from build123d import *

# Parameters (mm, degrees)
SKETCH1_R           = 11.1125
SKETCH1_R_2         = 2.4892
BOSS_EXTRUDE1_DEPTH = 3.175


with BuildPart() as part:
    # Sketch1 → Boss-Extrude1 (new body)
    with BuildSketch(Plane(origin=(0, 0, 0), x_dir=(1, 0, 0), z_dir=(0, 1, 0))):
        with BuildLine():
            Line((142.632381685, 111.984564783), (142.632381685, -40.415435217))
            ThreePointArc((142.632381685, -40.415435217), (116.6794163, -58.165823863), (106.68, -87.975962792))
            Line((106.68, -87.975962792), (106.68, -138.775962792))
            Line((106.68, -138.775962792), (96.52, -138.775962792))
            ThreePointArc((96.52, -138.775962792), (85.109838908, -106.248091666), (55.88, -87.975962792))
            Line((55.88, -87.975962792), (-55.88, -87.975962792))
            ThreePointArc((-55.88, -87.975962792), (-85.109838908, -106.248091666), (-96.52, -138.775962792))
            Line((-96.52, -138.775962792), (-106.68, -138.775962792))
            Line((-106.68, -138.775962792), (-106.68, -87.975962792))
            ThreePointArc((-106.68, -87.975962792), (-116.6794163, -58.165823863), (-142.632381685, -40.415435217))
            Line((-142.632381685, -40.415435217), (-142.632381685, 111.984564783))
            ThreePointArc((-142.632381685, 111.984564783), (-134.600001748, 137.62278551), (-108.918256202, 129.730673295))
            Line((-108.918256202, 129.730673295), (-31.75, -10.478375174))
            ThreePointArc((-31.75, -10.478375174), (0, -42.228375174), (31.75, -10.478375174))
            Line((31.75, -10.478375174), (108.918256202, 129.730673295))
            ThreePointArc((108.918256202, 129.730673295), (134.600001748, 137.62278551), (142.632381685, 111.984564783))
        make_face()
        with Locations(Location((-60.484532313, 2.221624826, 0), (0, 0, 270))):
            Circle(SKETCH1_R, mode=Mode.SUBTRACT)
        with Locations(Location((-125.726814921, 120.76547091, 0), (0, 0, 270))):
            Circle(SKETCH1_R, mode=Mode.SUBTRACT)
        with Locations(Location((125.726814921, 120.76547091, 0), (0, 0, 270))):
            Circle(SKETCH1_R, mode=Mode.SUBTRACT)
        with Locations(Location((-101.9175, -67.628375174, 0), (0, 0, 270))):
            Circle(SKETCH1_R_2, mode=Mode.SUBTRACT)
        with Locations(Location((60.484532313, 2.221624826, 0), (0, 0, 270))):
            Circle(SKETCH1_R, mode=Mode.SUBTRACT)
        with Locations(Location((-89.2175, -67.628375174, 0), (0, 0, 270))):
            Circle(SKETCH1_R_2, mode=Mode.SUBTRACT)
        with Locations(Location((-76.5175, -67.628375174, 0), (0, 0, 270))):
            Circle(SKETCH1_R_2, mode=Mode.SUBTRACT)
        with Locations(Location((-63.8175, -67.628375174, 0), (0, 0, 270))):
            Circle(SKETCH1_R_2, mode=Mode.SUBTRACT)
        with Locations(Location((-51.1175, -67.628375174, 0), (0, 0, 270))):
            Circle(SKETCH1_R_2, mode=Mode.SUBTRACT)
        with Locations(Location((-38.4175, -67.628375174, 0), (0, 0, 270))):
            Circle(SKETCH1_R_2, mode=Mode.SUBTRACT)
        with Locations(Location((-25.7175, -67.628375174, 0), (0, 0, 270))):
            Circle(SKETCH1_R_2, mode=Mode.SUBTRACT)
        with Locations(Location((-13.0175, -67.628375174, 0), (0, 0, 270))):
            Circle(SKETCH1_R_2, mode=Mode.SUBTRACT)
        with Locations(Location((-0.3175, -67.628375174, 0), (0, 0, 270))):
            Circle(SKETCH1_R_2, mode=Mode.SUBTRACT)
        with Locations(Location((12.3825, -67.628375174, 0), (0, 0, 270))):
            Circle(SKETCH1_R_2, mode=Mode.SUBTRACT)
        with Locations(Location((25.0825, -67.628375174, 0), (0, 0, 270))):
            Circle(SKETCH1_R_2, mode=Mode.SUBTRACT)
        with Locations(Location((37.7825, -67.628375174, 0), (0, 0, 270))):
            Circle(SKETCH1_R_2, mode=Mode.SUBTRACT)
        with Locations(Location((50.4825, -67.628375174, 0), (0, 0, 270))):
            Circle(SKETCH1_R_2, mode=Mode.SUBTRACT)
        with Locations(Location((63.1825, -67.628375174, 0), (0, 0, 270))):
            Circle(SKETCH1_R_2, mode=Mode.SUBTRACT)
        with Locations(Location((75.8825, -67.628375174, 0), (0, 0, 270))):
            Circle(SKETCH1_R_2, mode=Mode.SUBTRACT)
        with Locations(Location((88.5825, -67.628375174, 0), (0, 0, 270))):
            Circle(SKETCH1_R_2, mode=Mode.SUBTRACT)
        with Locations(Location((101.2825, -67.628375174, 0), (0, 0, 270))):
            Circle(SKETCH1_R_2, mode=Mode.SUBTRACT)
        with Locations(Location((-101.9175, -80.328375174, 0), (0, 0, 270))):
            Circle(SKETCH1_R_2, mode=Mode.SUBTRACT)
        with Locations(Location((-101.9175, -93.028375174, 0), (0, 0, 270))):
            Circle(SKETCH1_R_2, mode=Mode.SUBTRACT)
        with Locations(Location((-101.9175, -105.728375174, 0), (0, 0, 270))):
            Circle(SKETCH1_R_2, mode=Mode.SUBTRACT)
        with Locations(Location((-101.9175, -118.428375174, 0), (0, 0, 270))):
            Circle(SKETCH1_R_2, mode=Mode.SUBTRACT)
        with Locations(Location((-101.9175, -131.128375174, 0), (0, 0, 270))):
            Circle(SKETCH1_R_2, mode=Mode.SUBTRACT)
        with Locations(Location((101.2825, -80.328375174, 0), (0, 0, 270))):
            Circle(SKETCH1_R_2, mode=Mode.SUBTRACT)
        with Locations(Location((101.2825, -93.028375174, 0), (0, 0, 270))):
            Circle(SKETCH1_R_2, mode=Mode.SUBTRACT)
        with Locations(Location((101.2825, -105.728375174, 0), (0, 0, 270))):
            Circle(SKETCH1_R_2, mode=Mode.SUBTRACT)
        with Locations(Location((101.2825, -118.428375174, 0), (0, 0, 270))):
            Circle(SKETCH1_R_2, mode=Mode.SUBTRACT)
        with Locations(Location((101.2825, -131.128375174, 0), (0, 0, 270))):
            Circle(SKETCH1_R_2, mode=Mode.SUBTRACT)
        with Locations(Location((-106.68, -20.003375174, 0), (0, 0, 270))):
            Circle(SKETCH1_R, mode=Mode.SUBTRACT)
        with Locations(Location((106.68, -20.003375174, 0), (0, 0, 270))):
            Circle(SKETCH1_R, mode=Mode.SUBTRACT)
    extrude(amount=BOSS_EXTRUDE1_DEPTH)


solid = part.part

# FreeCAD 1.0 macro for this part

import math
import FreeCAD as App
import Part
import Sketcher
from FreeCAD import Vector
Q = App.Units.Quantity

doc = App.newDocument("Part")
body = doc.addObject("PartDesign::Body", "Body")

# Sketch on XZ plane
sketch1 = body.newObject("Sketcher::SketchObject", "Sketch")
sketch1.AttachmentSupport = (doc.getObject("XZ_Plane"), [""])
sketch1.MapMode = "FlatFace"
sketch1.addGeometry(Part.LineSegment(Vector(142.6, 40.4, 0), Vector(142.6, -112, 0)), False)
sketch1.addGeometry(Part.ArcOfCircle(Part.Circle(Vector(125.7, -120.8, 0), Vector(0, 0, 1), 19.1), math.radians(-152), math.radians(27)), False)
sketch1.addGeometry(Part.LineSegment(Vector(108.9, -129.7, 0), Vector(31.8, 10.5, 0)), False)
sketch1.addGeometry(Part.ArcOfCircle(Part.Circle(Vector(0, 10.5, 0), Vector(0, 0, 1), 31.8), math.radians(0), math.radians(180)), False)
sketch1.addGeometry(Part.LineSegment(Vector(-31.8, 10.5, 0), Vector(-108.9, -129.7, 0)), False)
sketch1.addGeometry(Part.ArcOfCircle(Part.Circle(Vector(-125.7, -120.8, 0), Vector(0, 0, 1), 19.1), math.radians(153), math.radians(332)), False)
sketch1.addGeometry(Part.LineSegment(Vector(-142.6, -112, 0), Vector(-142.6, 40.4, 0)), False)
sketch1.addGeometry(Part.ArcOfCircle(Part.Circle(Vector(-156.1, 88, 0), Vector(0, 0, 1), 49.4), math.radians(-74), math.radians(0)), False)
sketch1.addGeometry(Part.LineSegment(Vector(-106.7, 88, 0), Vector(-106.7, 138.8, 0)), False)
sketch1.addGeometry(Part.LineSegment(Vector(-106.7, 138.8, 0), Vector(-96.5, 138.8, 0)), False)
sketch1.addGeometry(Part.ArcOfCircle(Part.Circle(Vector(-44.5, 138.8, 0), Vector(0, 0, 1), 52.1), math.radians(180), math.radians(257)), False)
sketch1.addGeometry(Part.LineSegment(Vector(-55.9, 88, 0), Vector(55.9, 88, 0)), False)
sketch1.addGeometry(Part.ArcOfCircle(Part.Circle(Vector(44.5, 138.8, 0), Vector(0, 0, 1), 52.1), math.radians(-77), math.radians(0)), False)
sketch1.addGeometry(Part.LineSegment(Vector(96.5, 138.8, 0), Vector(106.7, 138.8, 0)), False)
sketch1.addGeometry(Part.LineSegment(Vector(106.7, 138.8, 0), Vector(106.7, 88, 0)), False)
sketch1.addGeometry(Part.ArcOfCircle(Part.Circle(Vector(156.1, 88, 0), Vector(0, 0, 1), 49.4), math.radians(-180), math.radians(-106)), False)
sketch1.addGeometry(Part.Circle(Vector(101.3, 131.1, 0), Vector(0, 0, 1), 2.5), False)
sketch1.addGeometry(Part.Circle(Vector(101.3, 118.4, 0), Vector(0, 0, 1), 2.5), False)
sketch1.addGeometry(Part.Circle(Vector(101.3, 105.7, 0), Vector(0, 0, 1), 2.5), False)
sketch1.addGeometry(Part.Circle(Vector(101.3, 93, 0), Vector(0, 0, 1), 2.5), False)
sketch1.addGeometry(Part.Circle(Vector(101.3, 80.3, 0), Vector(0, 0, 1), 2.5), False)
sketch1.addGeometry(Part.Circle(Vector(101.3, 67.6, 0), Vector(0, 0, 1), 2.5), False)
sketch1.addGeometry(Part.Circle(Vector(88.6, 67.6, 0), Vector(0, 0, 1), 2.5), False)
sketch1.addGeometry(Part.Circle(Vector(75.9, 67.6, 0), Vector(0, 0, 1), 2.5), False)
sketch1.addGeometry(Part.Circle(Vector(63.2, 67.6, 0), Vector(0, 0, 1), 2.5), False)
sketch1.addGeometry(Part.Circle(Vector(50.5, 67.6, 0), Vector(0, 0, 1), 2.5), False)
sketch1.addGeometry(Part.Circle(Vector(37.8, 67.6, 0), Vector(0, 0, 1), 2.5), False)
sketch1.addGeometry(Part.Circle(Vector(25.1, 67.6, 0), Vector(0, 0, 1), 2.5), False)
sketch1.addGeometry(Part.Circle(Vector(12.4, 67.6, 0), Vector(0, 0, 1), 2.5), False)
sketch1.addGeometry(Part.Circle(Vector(106.7, 20, 0), Vector(0, 0, 1), 11.1), False)
sketch1.addGeometry(Part.Circle(Vector(-0.3, 67.6, 0), Vector(0, 0, 1), 2.5), False)
sketch1.addGeometry(Part.Circle(Vector(-13, 67.6, 0), Vector(0, 0, 1), 2.5), False)
sketch1.addGeometry(Part.Circle(Vector(-25.7, 67.6, 0), Vector(0, 0, 1), 2.5), False)
sketch1.addGeometry(Part.Circle(Vector(-38.4, 67.6, 0), Vector(0, 0, 1), 2.5), False)
sketch1.addGeometry(Part.Circle(Vector(-51.1, 67.6, 0), Vector(0, 0, 1), 2.5), False)
sketch1.addGeometry(Part.Circle(Vector(-63.8, 67.6, 0), Vector(0, 0, 1), 2.5), False)
sketch1.addGeometry(Part.Circle(Vector(-101.9, 131.1, 0), Vector(0, 0, 1), 2.5), False)
sketch1.addGeometry(Part.Circle(Vector(-101.9, 118.4, 0), Vector(0, 0, 1), 2.5), False)
sketch1.addGeometry(Part.Circle(Vector(-101.9, 105.7, 0), Vector(0, 0, 1), 2.5), False)
sketch1.addGeometry(Part.Circle(Vector(-101.9, 93, 0), Vector(0, 0, 1), 2.5), False)
sketch1.addGeometry(Part.Circle(Vector(-76.5, 67.6, 0), Vector(0, 0, 1), 2.5), False)
sketch1.addGeometry(Part.Circle(Vector(-101.9, 80.3, 0), Vector(0, 0, 1), 2.5), False)
sketch1.addGeometry(Part.Circle(Vector(-89.2, 67.6, 0), Vector(0, 0, 1), 2.5), False)
sketch1.addGeometry(Part.Circle(Vector(-101.9, 67.6, 0), Vector(0, 0, 1), 2.5), False)
sketch1.addGeometry(Part.Circle(Vector(-106.7, 20, 0), Vector(0, 0, 1), 11.1), False)
sketch1.addGeometry(Part.Circle(Vector(60.5, -2.2, 0), Vector(0, 0, 1), 11.1), False)
sketch1.addGeometry(Part.Circle(Vector(125.7, -120.8, 0), Vector(0, 0, 1), 11.1), False)
sketch1.addGeometry(Part.Circle(Vector(-60.5, -2.2, 0), Vector(0, 0, 1), 11.1), False)
sketch1.addGeometry(Part.Circle(Vector(-125.7, -120.8, 0), Vector(0, 0, 1), 11.1), False)
sketch1.addConstraint(Sketcher.Constraint("Coincident", 0, 2, 1, 2))
sketch1.addConstraint(Sketcher.Constraint("Coincident", 1, 1, 2, 1))
sketch1.addConstraint(Sketcher.Constraint("Coincident", 2, 2, 3, 1))
sketch1.addConstraint(Sketcher.Constraint("Coincident", 3, 2, 4, 1))
sketch1.addConstraint(Sketcher.Constraint("Coincident", 4, 2, 5, 2))
sketch1.addConstraint(Sketcher.Constraint("Coincident", 5, 1, 6, 1))
sketch1.addConstraint(Sketcher.Constraint("Coincident", 6, 2, 7, 1))
sketch1.addConstraint(Sketcher.Constraint("Tangent", 7, 2, 8, 1))
sketch1.addConstraint(Sketcher.Constraint("Coincident", 8, 2, 9, 1))
sketch1.addConstraint(Sketcher.Constraint("Coincident", 9, 2, 10, 1))
sketch1.addConstraint(Sketcher.Constraint("Coincident", 10, 2, 11, 1))
sketch1.addConstraint(Sketcher.Constraint("Coincident", 11, 2, 12, 1))
sketch1.addConstraint(Sketcher.Constraint("Coincident", 12, 2, 13, 1))
sketch1.addConstraint(Sketcher.Constraint("Coincident", 13, 2, 14, 1))
sketch1.addConstraint(Sketcher.Constraint("Tangent", 14, 2, 15, 1))
sketch1.addConstraint(Sketcher.Constraint("Coincident", 15, 2, 0, 1))
sketch1.addConstraint(Sketcher.Constraint("Vertical", 0))
sketch1.addConstraint(Sketcher.Constraint("Vertical", 6))
sketch1.addConstraint(Sketcher.Constraint("Vertical", 8))
sketch1.addConstraint(Sketcher.Constraint("Horizontal", 9))
sketch1.addConstraint(Sketcher.Constraint("Horizontal", 11))
sketch1.addConstraint(Sketcher.Constraint("Horizontal", 13))
sketch1.addConstraint(Sketcher.Constraint("Vertical", 14))
sketch1.addConstraint(Sketcher.Constraint("Coincident", 46, 3, 1, 3))
sketch1.addConstraint(Sketcher.Constraint("Coincident", 48, 3, 5, 3))
sketch1.addConstraint(Sketcher.Constraint("Equal", 1, 5))
sketch1.addConstraint(Sketcher.Constraint("Equal", 10, 12))
sketch1.addConstraint(Sketcher.Constraint("Equal", 7, 15))
sketch1.addConstraint(Sketcher.Constraint("Equal", 16, 17))
sketch1.addConstraint(Sketcher.Constraint("Equal", 17, 18))
sketch1.addConstraint(Sketcher.Constraint("Equal", 18, 19))
sketch1.addConstraint(Sketcher.Constraint("Equal", 19, 20))
sketch1.addConstraint(Sketcher.Constraint("Equal", 20, 21))
sketch1.addConstraint(Sketcher.Constraint("Equal", 21, 22))
sketch1.addConstraint(Sketcher.Constraint("Equal", 22, 23))
sketch1.addConstraint(Sketcher.Constraint("Equal", 23, 24))
sketch1.addConstraint(Sketcher.Constraint("Equal", 24, 25))
sketch1.addConstraint(Sketcher.Constraint("Equal", 25, 26))
sketch1.addConstraint(Sketcher.Constraint("Equal", 26, 27))
sketch1.addConstraint(Sketcher.Constraint("Equal", 27, 28))
sketch1.addConstraint(Sketcher.Constraint("Equal", 28, 30))
sketch1.addConstraint(Sketcher.Constraint("Equal", 30, 31))
sketch1.addConstraint(Sketcher.Constraint("Equal", 31, 32))
sketch1.addConstraint(Sketcher.Constraint("Equal", 32, 33))
sketch1.addConstraint(Sketcher.Constraint("Equal", 33, 34))
sketch1.addConstraint(Sketcher.Constraint("Equal", 34, 35))
sketch1.addConstraint(Sketcher.Constraint("Equal", 35, 36))
sketch1.addConstraint(Sketcher.Constraint("Equal", 36, 37))
sketch1.addConstraint(Sketcher.Constraint("Equal", 37, 38))
sketch1.addConstraint(Sketcher.Constraint("Equal", 38, 39))
sketch1.addConstraint(Sketcher.Constraint("Equal", 39, 40))
sketch1.addConstraint(Sketcher.Constraint("Equal", 40, 41))
sketch1.addConstraint(Sketcher.Constraint("Equal", 41, 42))
sketch1.addConstraint(Sketcher.Constraint("Equal", 42, 43))
sketch1.addConstraint(Sketcher.Constraint("Equal", 29, 44))
sketch1.addConstraint(Sketcher.Constraint("Equal", 44, 45))
sketch1.addConstraint(Sketcher.Constraint("Equal", 45, 46))
sketch1.addConstraint(Sketcher.Constraint("Equal", 46, 47))
sketch1.addConstraint(Sketcher.Constraint("Equal", 47, 48))
sketch1.addConstraint(Sketcher.Constraint("Symmetric", 1, 3, 5, 3, -2))
sketch1.addConstraint(Sketcher.Constraint("Symmetric", 10, 3, 12, 3, -2))
sketch1.addConstraint(Sketcher.Constraint("Symmetric", 7, 3, 15, 3, -2))
sketch1.addConstraint(Sketcher.Constraint("Symmetric", 29, 3, 44, 3, -2))
sketch1.addConstraint(Sketcher.Constraint("Symmetric", 45, 3, 47, 3, -2))
sketch1.addConstraint(Sketcher.Constraint("Symmetric", 2, 2, 3, 2, -2))
sketch1.addConstraint(Sketcher.Constraint("Horizontal", 21, 3, 22, 3))
sketch1.addConstraint(Sketcher.Constraint("Horizontal", 22, 3, 23, 3))
sketch1.addConstraint(Sketcher.Constraint("Horizontal", 23, 3, 24, 3))
sketch1.addConstraint(Sketcher.Constraint("Horizontal", 24, 3, 25, 3))
sketch1.addConstraint(Sketcher.Constraint("Horizontal", 25, 3, 26, 3))
sketch1.addConstraint(Sketcher.Constraint("Horizontal", 26, 3, 27, 3))
sketch1.addConstraint(Sketcher.Constraint("Horizontal", 27, 3, 28, 3))
sketch1.addConstraint(Sketcher.Constraint("Horizontal", 28, 3, 30, 3))
sketch1.addConstraint(Sketcher.Constraint("Horizontal", 30, 3, 31, 3))
sketch1.addConstraint(Sketcher.Constraint("Horizontal", 31, 3, 32, 3))
sketch1.addConstraint(Sketcher.Constraint("Horizontal", 32, 3, 33, 3))
sketch1.addConstraint(Sketcher.Constraint("Horizontal", 33, 3, 34, 3))
sketch1.addConstraint(Sketcher.Constraint("Horizontal", 34, 3, 35, 3))
sketch1.addConstraint(Sketcher.Constraint("Horizontal", 16, 3, 36, 3))
sketch1.addConstraint(Sketcher.Constraint("Horizontal", 17, 3, 37, 3))
sketch1.addConstraint(Sketcher.Constraint("Horizontal", 18, 3, 38, 3))
sketch1.addConstraint(Sketcher.Constraint("Horizontal", 19, 3, 39, 3))
sketch1.addConstraint(Sketcher.Constraint("Horizontal", 35, 3, 40, 3))
sketch1.addConstraint(Sketcher.Constraint("Horizontal", 20, 3, 41, 3))
sketch1.addConstraint(Sketcher.Constraint("Horizontal", 40, 3, 42, 3))
sketch1.addConstraint(Sketcher.Constraint("Horizontal", 42, 3, 43, 3))
sketch1.addConstraint(Sketcher.Constraint("Horizontal", 3, 3, 2, 2))
sketch1.addConstraint(Sketcher.Constraint("Horizontal", 1, 1, 4, 2))
sketch1.addConstraint(Sketcher.Constraint("Horizontal", 0, 2, 5, 1))
sketch1.addConstraint(Sketcher.Constraint("Horizontal", 12, 3, 8, 2))
sketch1.addConstraint(Sketcher.Constraint("Horizontal", 7, 2, 10, 2))
sketch1.addConstraint(Sketcher.Constraint("Horizontal", 9, 2, 12, 2))
sketch1.addConstraint(Sketcher.Constraint("Vertical", 16, 3, 17, 3))
sketch1.addConstraint(Sketcher.Constraint("Vertical", 17, 3, 18, 3))
sketch1.addConstraint(Sketcher.Constraint("Vertical", 18, 3, 19, 3))
sketch1.addConstraint(Sketcher.Constraint("Vertical", 19, 3, 20, 3))
sketch1.addConstraint(Sketcher.Constraint("Vertical", 20, 3, 21, 3))
sketch1.addConstraint(Sketcher.Constraint("Vertical", 36, 3, 37, 3))
sketch1.addConstraint(Sketcher.Constraint("Vertical", 37, 3, 38, 3))
sketch1.addConstraint(Sketcher.Constraint("Vertical", 38, 3, 39, 3))
sketch1.addConstraint(Sketcher.Constraint("Vertical", 39, 3, 41, 3))
sketch1.addConstraint(Sketcher.Constraint("Vertical", 41, 3, 43, 3))
sketch1.addConstraint(Sketcher.Constraint("Vertical", 44, 3, 7, 2))
sketch1.addConstraint(Sketcher.Constraint("DistanceY", 0, 2, 0, 1, Q("6 in")))
sketch1.addConstraint(Sketcher.Constraint("DistanceY", 8, 1, 8, 2, Q("2 in")))
sketch1.addConstraint(Sketcher.Constraint("Radius", 1, Q("0.75 in")))
sketch1.addConstraint(Sketcher.Constraint("Radius", 3, Q("1.25 in")))
sketch1.addConstraint(Sketcher.Constraint("Radius", 10, Q("2.05 in")))
sketch1.addConstraint(Sketcher.Constraint("Diameter", 16, Q("0.196 in")))
sketch1.addConstraint(Sketcher.Constraint("Diameter", 29, Q("0.875 in")))
sketch1.addConstraint(Sketcher.Constraint("DistanceX", 9, 1, 9, 2, Q("0.4 in")))
sketch1.addConstraint(Sketcher.Constraint("DistanceX", 11, 1, 11, 2, Q("4.4 in")))
sketch1.addConstraint(Sketcher.Constraint("DistanceY", 18, 3, 16, 3, Q("1 in")))
sketch1.addConstraint(Sketcher.Constraint("DistanceY", 19, 3, 17, 3, Q("1 in")))
sketch1.addConstraint(Sketcher.Constraint("DistanceY", 20, 3, 18, 3, Q("1 in")))
sketch1.addConstraint(Sketcher.Constraint("DistanceY", 21, 3, 19, 3, Q("1 in")))
sketch1.addConstraint(Sketcher.Constraint("DistanceX", 23, 3, 21, 3, Q("1 in")))
sketch1.addConstraint(Sketcher.Constraint("DistanceX", 24, 3, 22, 3, Q("1 in")))
sketch1.addConstraint(Sketcher.Constraint("DistanceX", 25, 3, 23, 3, Q("1 in")))
sketch1.addConstraint(Sketcher.Constraint("DistanceX", 26, 3, 24, 3, Q("1 in")))
sketch1.addConstraint(Sketcher.Constraint("DistanceX", 27, 3, 25, 3, Q("1 in")))
sketch1.addConstraint(Sketcher.Constraint("DistanceX", 28, 3, 26, 3, Q("1 in")))
sketch1.addConstraint(Sketcher.Constraint("DistanceX", 30, 3, 27, 3, Q("1 in")))
sketch1.addConstraint(Sketcher.Constraint("DistanceX", 31, 3, 28, 3, Q("1 in")))
sketch1.addConstraint(Sketcher.Constraint("DistanceX", 32, 3, 30, 3, Q("1 in")))
sketch1.addConstraint(Sketcher.Constraint("DistanceX", 33, 3, 31, 3, Q("1 in")))
sketch1.addConstraint(Sketcher.Constraint("DistanceX", 34, 3, 32, 3, Q("1 in")))
sketch1.addConstraint(Sketcher.Constraint("DistanceX", 35, 3, 33, 3, Q("1 in")))
sketch1.addConstraint(Sketcher.Constraint("DistanceX", 36, 3, 34, 3, Q("2 in")))
sketch1.addConstraint(Sketcher.Constraint("DistanceX", 40, 3, 34, 3, Q("1 in")))
sketch1.addConstraint(Sketcher.Constraint("DistanceX", 42, 3, 35, 3, Q("1 in")))
sketch1.addConstraint(Sketcher.Constraint("DistanceY", 17, 3, 16, 3, Q("0.5 in")))
sketch1.addConstraint(Sketcher.Constraint("DistanceX", 22, 3, 21, 3, Q("0.5 in")))
sketch1.addConstraint(Sketcher.Constraint("DistanceY", 45, 3, 3, 3, Q("0.5 in")))
sketch1.addConstraint(Sketcher.Constraint("DistanceY", 3, 3, 16, 3, Q("4.75 in")))
sketch1.addConstraint(Sketcher.Constraint("Radius", 7, 49.434521))
sketch1.addConstraint(Sketcher.Constraint("DistanceY", 29, 3, 21, 3, Q("1.875 in")))
sketch1.addConstraint(Sketcher.Constraint("DistanceX", 44, 3, 43, 3, Q("0.1875 in")))
sketch1.addConstraint(Sketcher.Constraint("DistanceY", 1, 3, -1, 1, 120.765471))
sketch1.addConstraint(Sketcher.Constraint("DistanceX", -1, 1, 0, 2, 142.632382))
sketch1.addConstraint(Sketcher.Constraint("DistanceX", 5, 3, 1, 3, 251.45363))
sketch1.addConstraint(Sketcher.Constraint("DistanceY", 0, 2, 29, 3, 131.98794))
sketch1.addConstraint(Sketcher.Constraint("DistanceX", 45, 3, 0, 2, 82.147849))
sketch1.addConstraint(Sketcher.Constraint("DistanceX", 1, 1, 46, 3, 16.808559))
pad1 = body.newObject("PartDesign::Pad", "Pad")
pad1.Profile = sketch1
pad1.Length = Q("0.125 in")
pad1.Reversed = True

doc.recompute()
